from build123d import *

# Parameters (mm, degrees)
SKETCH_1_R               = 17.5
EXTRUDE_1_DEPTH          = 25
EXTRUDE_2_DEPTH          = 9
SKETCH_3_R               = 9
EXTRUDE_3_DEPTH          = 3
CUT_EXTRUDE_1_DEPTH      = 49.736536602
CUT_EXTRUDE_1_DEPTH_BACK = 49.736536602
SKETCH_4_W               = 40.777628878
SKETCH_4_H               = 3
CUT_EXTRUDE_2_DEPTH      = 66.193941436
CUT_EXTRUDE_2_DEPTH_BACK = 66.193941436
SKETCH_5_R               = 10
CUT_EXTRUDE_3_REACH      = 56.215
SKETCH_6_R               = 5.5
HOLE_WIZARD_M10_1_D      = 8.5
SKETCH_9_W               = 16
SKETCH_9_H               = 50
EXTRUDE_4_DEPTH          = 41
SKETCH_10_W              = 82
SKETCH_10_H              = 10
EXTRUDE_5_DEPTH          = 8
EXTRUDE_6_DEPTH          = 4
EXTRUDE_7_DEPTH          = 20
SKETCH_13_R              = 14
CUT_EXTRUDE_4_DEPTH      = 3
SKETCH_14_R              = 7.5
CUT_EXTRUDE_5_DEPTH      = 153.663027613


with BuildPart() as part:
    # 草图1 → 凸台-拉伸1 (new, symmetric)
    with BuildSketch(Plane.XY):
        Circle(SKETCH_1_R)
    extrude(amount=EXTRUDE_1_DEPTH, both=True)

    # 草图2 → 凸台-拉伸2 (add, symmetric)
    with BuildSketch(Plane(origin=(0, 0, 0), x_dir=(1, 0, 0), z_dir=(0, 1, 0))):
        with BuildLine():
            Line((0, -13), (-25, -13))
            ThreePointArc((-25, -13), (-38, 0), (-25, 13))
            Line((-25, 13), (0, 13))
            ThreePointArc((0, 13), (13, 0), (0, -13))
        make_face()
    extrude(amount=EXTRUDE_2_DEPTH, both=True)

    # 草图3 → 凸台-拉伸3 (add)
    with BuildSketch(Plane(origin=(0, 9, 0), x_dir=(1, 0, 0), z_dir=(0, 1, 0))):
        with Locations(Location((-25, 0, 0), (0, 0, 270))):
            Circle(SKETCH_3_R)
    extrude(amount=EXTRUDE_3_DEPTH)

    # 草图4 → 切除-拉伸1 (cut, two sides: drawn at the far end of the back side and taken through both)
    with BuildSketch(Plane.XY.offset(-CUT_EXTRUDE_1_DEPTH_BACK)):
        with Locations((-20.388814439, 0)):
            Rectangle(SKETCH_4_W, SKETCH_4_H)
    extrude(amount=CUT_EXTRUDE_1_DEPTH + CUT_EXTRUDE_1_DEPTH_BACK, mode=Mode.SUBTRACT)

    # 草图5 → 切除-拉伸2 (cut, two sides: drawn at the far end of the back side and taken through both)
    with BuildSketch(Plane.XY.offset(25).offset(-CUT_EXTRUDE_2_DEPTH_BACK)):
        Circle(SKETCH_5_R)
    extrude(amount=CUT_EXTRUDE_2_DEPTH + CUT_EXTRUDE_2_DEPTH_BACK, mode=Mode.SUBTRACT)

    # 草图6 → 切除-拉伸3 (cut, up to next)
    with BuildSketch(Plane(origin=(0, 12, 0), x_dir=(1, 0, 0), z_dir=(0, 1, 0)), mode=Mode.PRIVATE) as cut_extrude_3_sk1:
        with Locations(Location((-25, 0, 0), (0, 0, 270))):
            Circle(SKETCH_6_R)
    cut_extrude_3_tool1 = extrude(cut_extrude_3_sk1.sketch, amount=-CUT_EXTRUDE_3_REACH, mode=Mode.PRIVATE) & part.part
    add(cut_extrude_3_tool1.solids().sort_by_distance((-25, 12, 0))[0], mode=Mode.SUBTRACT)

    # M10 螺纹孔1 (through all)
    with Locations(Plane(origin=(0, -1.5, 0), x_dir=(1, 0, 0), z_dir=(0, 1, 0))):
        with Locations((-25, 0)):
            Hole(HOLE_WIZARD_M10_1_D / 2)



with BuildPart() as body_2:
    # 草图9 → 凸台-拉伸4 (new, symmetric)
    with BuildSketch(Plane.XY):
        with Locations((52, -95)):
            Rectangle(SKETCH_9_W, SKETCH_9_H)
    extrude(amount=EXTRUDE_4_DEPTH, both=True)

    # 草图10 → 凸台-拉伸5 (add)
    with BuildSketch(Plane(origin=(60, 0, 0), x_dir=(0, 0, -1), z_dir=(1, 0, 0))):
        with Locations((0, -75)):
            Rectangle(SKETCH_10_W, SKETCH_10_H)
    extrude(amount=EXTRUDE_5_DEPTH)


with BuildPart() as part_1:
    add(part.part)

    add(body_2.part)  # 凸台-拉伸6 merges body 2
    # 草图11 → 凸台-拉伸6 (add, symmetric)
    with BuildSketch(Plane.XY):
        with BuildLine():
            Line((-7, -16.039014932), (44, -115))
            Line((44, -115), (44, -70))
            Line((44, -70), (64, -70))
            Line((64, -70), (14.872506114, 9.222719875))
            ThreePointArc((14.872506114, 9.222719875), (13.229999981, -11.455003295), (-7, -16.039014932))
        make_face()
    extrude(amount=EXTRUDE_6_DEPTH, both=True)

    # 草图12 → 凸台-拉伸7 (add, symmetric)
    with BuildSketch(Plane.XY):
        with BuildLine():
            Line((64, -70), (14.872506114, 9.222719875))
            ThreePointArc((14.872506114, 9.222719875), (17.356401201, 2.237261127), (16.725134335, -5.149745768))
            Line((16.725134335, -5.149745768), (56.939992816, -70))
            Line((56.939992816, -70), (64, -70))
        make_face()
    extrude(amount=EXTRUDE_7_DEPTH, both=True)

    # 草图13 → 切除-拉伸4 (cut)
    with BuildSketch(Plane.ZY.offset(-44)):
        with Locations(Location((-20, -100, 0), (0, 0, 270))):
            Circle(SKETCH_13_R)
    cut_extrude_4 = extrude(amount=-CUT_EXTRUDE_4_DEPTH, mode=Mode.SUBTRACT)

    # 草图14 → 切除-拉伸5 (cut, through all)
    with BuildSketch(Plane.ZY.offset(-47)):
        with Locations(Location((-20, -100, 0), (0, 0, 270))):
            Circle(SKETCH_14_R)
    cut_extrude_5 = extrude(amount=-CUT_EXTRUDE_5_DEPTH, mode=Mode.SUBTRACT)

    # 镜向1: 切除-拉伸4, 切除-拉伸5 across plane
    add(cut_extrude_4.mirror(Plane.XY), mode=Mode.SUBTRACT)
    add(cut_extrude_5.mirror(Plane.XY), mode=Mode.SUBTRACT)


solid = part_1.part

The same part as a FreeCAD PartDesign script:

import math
import FreeCAD as App
import Part
import Sketcher

V = App.Vector
Q = App.Units.Quantity

doc = App.newDocument("Part")
params = doc.addObject("Spreadsheet::Sheet", "Params")
for row, (alias, value) in enumerate([
    ("sketch1_diameter", "35 mm"),
    ("pad1_length", "50 mm"),
    ("sketch2_radius", "13 mm"),
    ("sketch2_width", "25 mm"),
    ("pad2_length", "18 mm"),
    ("sketch3_diameter", "18 mm"),
    ("pad3_length", "3 mm"),
    ("sketch4_height", "3 mm"),
    ("sketch5_diameter", "20 mm"),
    ("sketch6_diameter", "11 mm"),
    ("sketch7_diameter", "8.5 mm"),
    ("hole_diameter", "8.5 mm"),
    ("sketch8_width", "16 mm"),
    ("sketch8_height", "50 mm"),
    ("pad4_length", "82 mm"),
    ("sketch9_width", "10 mm"),
    ("sketch9_height", "82 mm"),
    ("pad5_length", "8 mm"),
    ("sketch10_radius", "17.5 mm"),
    ("sketch10_width", "20 mm"),
    ("sketch10_height", "45 mm"),
    ("pad6_length", "8 mm"),
    ("sketch11_radius", "17.5 mm"),
    ("pad7_length", "40 mm"),
    ("sketch12_diameter", "28 mm"),
    ("pocket4_length", "3 mm"),
    ("sketch13_diameter", "15 mm"),
], start=1):
    params.set(f"A{row}", alias)
    params.set(f"B{row}", "=" + value)
    params.setAlias(f"B{row}", alias)

body = doc.addObject("PartDesign::Body", "Body")

# Sketch on XY plane
sketch1 = body.newObject("Sketcher::SketchObject", "Sketch")
sketch1.AttachmentSupport = (doc.getObject("XY_Plane"), [""])
sketch1.MapMode = "FlatFace"
sketch1.addGeometry(Part.Circle(V(0, 0, 0), V(0, 0, 1), 17.5), False)
sketch1.addConstraint(Sketcher.Constraint("Coincident", 0, 3, -1, 1))
sketch1.addConstraint(Sketcher.Constraint("Diameter", 0, Q("35 mm")))
sketch1.setExpression("Constraints[1]", "Params.sketch1_diameter")
pad1 = body.newObject("PartDesign::Pad", "Pad")
pad1.Profile = sketch1
pad1.setExpression("Length", "Params.pad1_length")
pad1.Midplane = True

# Sketch on XZ plane
sketch2 = body.newObject("Sketcher::SketchObject", "Sketch001")
sketch2.AttachmentSupport = (doc.getObject("XZ_Plane"), [""])
sketch2.MapMode = "FlatFace"
sketch2.addGeometry(Part.LineSegment(V(-25, 13, 0), V(0, 13, 0)), False)
sketch2.addGeometry(Part.ArcOfCircle(Part.Circle(V(0, 0, 0), V(0, 0, 1), 13), math.radians(-90), math.radians(90)), False)
sketch2.addGeometry(Part.LineSegment(V(0, -13, 0), V(-25, -13, 0)), False)
sketch2.addGeometry(Part.ArcOfCircle(Part.Circle(V(-25, 0, 0), V(0, 0, 1), 13), math.radians(90), math.radians(270)), False)
sketch2.addConstraint(Sketcher.Constraint("Tangent", 0, 2, 1, 2))
sketch2.addConstraint(Sketcher.Constraint("Tangent", 1, 1, 2, 1))
sketch2.addConstraint(Sketcher.Constraint("Tangent", 2, 2, 3, 2))
sketch2.addConstraint(Sketcher.Constraint("Tangent", 3, 1, 0, 1))
sketch2.addConstraint(Sketcher.Constraint("Horizontal", 0))
sketch2.addConstraint(Sketcher.Constraint("Horizontal", 2))
sketch2.addConstraint(Sketcher.Constraint("Coincident", 1, 3, -1, 1))
sketch2.addConstraint(Sketcher.Constraint("Radius", 1, Q("13 mm")))
sketch2.addConstraint(Sketcher.Constraint("DistanceX", 0, 1, 0, 2, Q("25 mm")))
sketch2.setExpression("Constraints[7]", "Params.sketch2_radius")
sketch2.setExpression("Constraints[8]", "Params.sketch2_width")
pad2 = body.newObject("PartDesign::Pad", "Pad001")
pad2.Profile = sketch2
pad2.setExpression("Length", "Params.pad2_length")
pad2.Midplane = True

# Sketch on XZ plane
sketch3 = body.newObject("Sketcher::SketchObject", "Sketch002")
sketch3.AttachmentSupport = (doc.getObject("XZ_Plane"), [""])
sketch3.MapMode = "FlatFace"
sketch3.AttachmentOffset = App.Placement(V(0, 0, -9), App.Rotation())
sketch3.addGeometry(Part.Circle(V(-25, 0, 0), V(0, 0, 1), 9), False)
sketch3.addConstraint(Sketcher.Constraint("PointOnObject", 0, 3, -1))
sketch3.addConstraint(Sketcher.Constraint("Diameter", 0, Q("18 mm")))
sketch3.addConstraint(Sketcher.Constraint("DistanceX", 0, 3, -1, 1, Q("25 mm")))
sketch3.setExpression("Constraints[1]", "Params.sketch3_diameter")
pad3 = body.newObject("PartDesign::Pad", "Pad002")
pad3.Profile = sketch3
pad3.setExpression("Length", "Params.pad3_length")
pad3.Reversed = True

# Sketch on XY plane
sketch4 = body.newObject("Sketcher::SketchObject", "Sketch003")
sketch4.AttachmentSupport = (doc.getObject("XY_Plane"), [""])
sketch4.MapMode = "FlatFace"
sketch4.addGeometry(Part.LineSegment(V(-40.777629, 1.5, 0), V(-40.777629, -1.5, 0)), False)
sketch4.addGeometry(Part.LineSegment(V(-40.777629, -1.5, 0), V(0, -1.5, 0)), False)
sketch4.addGeometry(Part.LineSegment(V(0, -1.5, 0), V(0, 1.5, 0)), False)
sketch4.addGeometry(Part.LineSegment(V(0, 1.5, 0), V(-40.777629, 1.5, 0)), False)
sketch4.addConstraint(Sketcher.Constraint("Coincident", 0, 2, 1, 1))
sketch4.addConstraint(Sketcher.Constraint("Coincident", 1, 2, 2, 1))
sketch4.addConstraint(Sketcher.Constraint("Coincident", 2, 2, 3, 1))
sketch4.addConstraint(Sketcher.Constraint("Coincident", 3, 2, 0, 1))
sketch4.addConstraint(Sketcher.Constraint("Vertical", 0))
sketch4.addConstraint(Sketcher.Constraint("Horizontal", 1))
sketch4.addConstraint(Sketcher.Constraint("Vertical", 2))
sketch4.addConstraint(Sketcher.Constraint("Horizontal", 3))
sketch4.addConstraint(Sketcher.Constraint("Symmetric", 1, 2, 2, 2, -1, 1))
sketch4.addConstraint(Sketcher.Constraint("DistanceY", 0, 2, 0, 1, Q("3 mm")))
sketch4.addConstraint(Sketcher.Constraint("DistanceX", 1, 1, 1, 2, Q("40.777629 mm")))
sketch4.setExpression("Constraints[9]", "Params.sketch4_height")
pocket1 = body.newObject("PartDesign::Pocket", "Pocket")
pocket1.Profile = sketch4
pocket1.Type = "ThroughAll"
pocket1.Midplane = True

# Sketch on XY plane
sketch5 = body.newObject("Sketcher::SketchObject", "Sketch004")
sketch5.AttachmentSupport = (doc.getObject("XY_Plane"), [""])
sketch5.MapMode = "FlatFace"
sketch5.AttachmentOffset = App.Placement(V(0, 0, 25), App.Rotation())
sketch5.addGeometry(Part.Circle(V(0, 0, 0), V(0, 0, 1), 10), False)
sketch5.addConstraint(Sketcher.Constraint("Coincident", 0, 3, -1, 1))
sketch5.addConstraint(Sketcher.Constraint("Diameter", 0, Q("20 mm")))
sketch5.setExpression("Constraints[1]", "Params.sketch5_diameter")
pocket2 = body.newObject("PartDesign::Pocket", "Pocket001")
pocket2.Profile = sketch5
pocket2.Type = "ThroughAll"
pocket2.Midplane = True

# Sketch on XZ plane
sketch6 = body.newObject("Sketcher::SketchObject", "Sketch005")
sketch6.AttachmentSupport = (doc.getObject("XZ_Plane"), [""])
sketch6.MapMode = "FlatFace"
sketch6.AttachmentOffset = App.Placement(V(0, 0, -12), App.Rotation())
sketch6.addGeometry(Part.Circle(V(-25, 0, 0), V(0, 0, 1), 5.5), False)
sketch6.addConstraint(Sketcher.Constraint("PointOnObject", 0, 3, -1))
sketch6.addConstraint(Sketcher.Constraint("Diameter", 0, Q("11 mm")))
sketch6.addConstraint(Sketcher.Constraint("DistanceX", 0, 3, -1, 1, Q("25 mm")))
sketch6.setExpression("Constraints[1]", "Params.sketch6_diameter")
pocket3 = body.newObject("PartDesign::Pocket", "Pocket002")
pocket3.Profile = sketch6
pocket3.Type = "UpToFirst"
pocket3.Reversed = True

# Sketch on XZ plane
sketch7 = body.newObject("Sketcher::SketchObject", "Sketch006")
sketch7.AttachmentSupport = (doc.getObject("XZ_Plane"), [""])
sketch7.MapMode = "FlatFace"
sketch7.AttachmentOffset = App.Placement(V(0, 0, 1.5), App.Rotation())
sketch7.addGeometry(Part.Circle(V(-25, 0, 0), V(0, 0, 1), 4.25), False)
sketch7.addConstraint(Sketcher.Constraint("PointOnObject", 0, 3, -1))
sketch7.addConstraint(Sketcher.Constraint("Diameter", 0, Q("8.5 mm")))
sketch7.addConstraint(Sketcher.Constraint("DistanceX", 0, 3, -1, 1, Q("25 mm")))
sketch7.setExpression("Constraints[1]", "Params.sketch7_diameter")
doc.recompute()
hole = body.newObject("PartDesign::Hole", "Hole")
hole.Profile = sketch7
hole.ThreadType = "None"
hole.setExpression("Diameter", "Params.hole_diameter")
hole.DepthType = "ThroughAll"
hole.Reversed = True
body2 = doc.addObject("PartDesign::Body", "Body001")

# Sketch on XY plane
sketch8 = body2.newObject("Sketcher::SketchObject", "Sketch007")
sketch8.AttachmentSupport = (doc.getObject("XY_Plane001"), [""])
sketch8.MapMode = "FlatFace"
sketch8.addGeometry(Part.LineSegment(V(44, -70, 0), V(44, -120, 0)), False)
sketch8.addGeometry(Part.LineSegment(V(44, -120, 0), V(60, -120, 0)), False)
sketch8.addGeometry(Part.LineSegment(V(60, -120, 0), V(60, -70, 0)), False)
sketch8.addGeometry(Part.LineSegment(V(60, -70, 0), V(44, -70, 0)), False)
sketch8.addConstraint(Sketcher.Constraint("Coincident", 0, 2, 1, 1))
sketch8.addConstraint(Sketcher.Constraint("Coincident", 1, 2, 2, 1))
sketch8.addConstraint(Sketcher.Constraint("Coincident", 2, 2, 3, 1))
sketch8.addConstraint(Sketcher.Constraint("Coincident", 3, 2, 0, 1))
sketch8.addConstraint(Sketcher.Constraint("Vertical", 0))
sketch8.addConstraint(Sketcher.Constraint("Horizontal", 1))
sketch8.addConstraint(Sketcher.Constraint("Vertical", 2))
sketch8.addConstraint(Sketcher.Constraint("Horizontal", 3))
sketch8.addConstraint(Sketcher.Constraint("DistanceX", 1, 1, 1, 2, Q("16 mm")))
sketch8.addConstraint(Sketcher.Constraint("DistanceY", 0, 2, 0, 1, Q("50 mm")))
sketch8.addConstraint(Sketcher.Constraint("DistanceX", -1, 1, 0, 2, Q("44 mm")))
sketch8.addConstraint(Sketcher.Constraint("DistanceY", 0, 2, -1, 1, Q("120 mm")))
sketch8.setExpression("Constraints[8]", "Params.sketch8_width")
sketch8.setExpression("Constraints[9]", "Params.sketch8_height")
pad4 = body2.newObject("PartDesign::Pad", "Pad003")
pad4.Profile = sketch8
pad4.setExpression("Length", "Params.pad4_length")
pad4.Midplane = True

# Sketch on YZ plane
sketch9 = body2.newObject("Sketcher::SketchObject", "Sketch008")
sketch9.AttachmentSupport = (doc.getObject("YZ_Plane001"), [""])
sketch9.MapMode = "FlatFace"
sketch9.AttachmentOffset = App.Placement(V(0, 0, 60), App.Rotation())
sketch9.addGeometry(Part.LineSegment(V(-70, 41, 0), V(-80, 41, 0)), False)
sketch9.addGeometry(Part.LineSegment(V(-80, 41, 0), V(-80, -41, 0)), False)
sketch9.addGeometry(Part.LineSegment(V(-80, -41, 0), V(-70, -41, 0)), False)
sketch9.addGeometry(Part.LineSegment(V(-70, -41, 0), V(-70, 41, 0)), False)
sketch9.addConstraint(Sketcher.Constraint("Coincident", 0, 2, 1, 1))
sketch9.addConstraint(Sketcher.Constraint("Coincident", 1, 2, 2, 1))
sketch9.addConstraint(Sketcher.Constraint("Coincident", 2, 2, 3, 1))
sketch9.addConstraint(Sketcher.Constraint("Coincident", 3, 2, 0, 1))
sketch9.addConstraint(Sketcher.Constraint("Horizontal", 0))
sketch9.addConstraint(Sketcher.Constraint("Vertical", 1))
sketch9.addConstraint(Sketcher.Constraint("Horizontal", 2))
sketch9.addConstraint(Sketcher.Constraint("Vertical", 3))
sketch9.addConstraint(Sketcher.Constraint("DistanceX", 0, 2, 0, 1, Q("10 mm")))
sketch9.addConstraint(Sketcher.Constraint("DistanceY", 1, 2, 1, 1, Q("82 mm")))
sketch9.addConstraint(Sketcher.Constraint("DistanceX", 0, 2, -1, 1, Q("80 mm")))
sketch9.addConstraint(Sketcher.Constraint("DistanceY", -1, 1, 0, 2, Q("41 mm")))
sketch9.setExpression("Constraints[8]", "Params.sketch9_width")
sketch9.setExpression("Constraints[9]", "Params.sketch9_height")
pad5 = body2.newObject("PartDesign::Pad", "Pad004")
pad5.Profile = sketch9
pad5.setExpression("Length", "Params.pad5_length")
body.AllowCompound = True
doc.recompute()

boolean = body.newObject("PartDesign::Boolean", "Boolean")
boolean.Type = "Fuse"
boolean.addObjects([body2])

# Sketch on XY plane
sketch10 = body.newObject("Sketcher::SketchObject", "Sketch009")
sketch10.AttachmentSupport = (doc.getObject("XY_Plane"), [""])
sketch10.MapMode = "FlatFace"
sketch10.addGeometry(Part.LineSegment(V(-7, -16.039015, 0), V(44, -115, 0)), False)
sketch10.addGeometry(Part.LineSegment(V(44, -115, 0), V(44, -70, 0)), False)
sketch10.addGeometry(Part.LineSegment(V(44, -70, 0), V(64, -70, 0)), False)
sketch10.addGeometry(Part.LineSegment(V(64, -70, 0), V(14.872506, 9.22272, 0)), False)
sketch10.addGeometry(Part.ArcOfCircle(Part.Circle(V(0, 0, 0), V(0, 0, 1), 17.5), math.radians(-113.578178), math.radians(31.803827)), False)
sketch10.addConstraint(Sketcher.Constraint("Coincident", 0, 2, 1, 1))
sketch10.addConstraint(Sketcher.Constraint("Coincident", 1, 2, 2, 1))
sketch10.addConstraint(Sketcher.Constraint("Coincident", 2, 2, 3, 1))
sketch10.addConstraint(Sketcher.Constraint("Tangent", 3, 2, 4, 2))
sketch10.addConstraint(Sketcher.Constraint("Coincident", 4, 1, 0, 1))
sketch10.addConstraint(Sketcher.Constraint("Vertical", 1))
sketch10.addConstraint(Sketcher.Constraint("Horizontal", 2))
sketch10.addConstraint(Sketcher.Constraint("Coincident", 4, 3, -1, 1))
sketch10.addConstraint(Sketcher.Constraint("Radius", 4, Q("17.5 mm")))
sketch10.addConstraint(Sketcher.Constraint("DistanceX", 2, 1, 2, 2, Q("20 mm")))
sketch10.addConstraint(Sketcher.Constraint("DistanceY", 1, 1, 1, 2, Q("45 mm")))
sketch10.addConstraint(Sketcher.Constraint("DistanceX", -1, 1, 0, 2, Q("44 mm")))
sketch10.addConstraint(Sketcher.Constraint("DistanceY", 0, 2, -1, 1, Q("115 mm")))
sketch10.addConstraint(Sketcher.Constraint("DistanceX", 4, 1, -1, 1, Q("7 mm")))
sketch10.setExpression("Constraints[8]", "Params.sketch10_radius")
sketch10.setExpression("Constraints[9]", "Params.sketch10_width")
sketch10.setExpression("Constraints[10]", "Params.sketch10_height")
pad6 = body.newObject("PartDesign::Pad", "Pad005")
pad6.Profile = sketch10
pad6.setExpression("Length", "Params.pad6_length")
pad6.Midplane = True

# Sketch on XY plane
sketch11 = body.newObject("Sketcher::SketchObject", "Sketch010")
sketch11.AttachmentSupport = (doc.getObject("XY_Plane"), [""])
sketch11.MapMode = "FlatFace"
sketch11.addGeometry(Part.LineSegment(V(64, -70, 0), V(14.872506, 9.22272, 0)), False)
sketch11.addGeometry(Part.ArcOfCircle(Part.Circle(V(0, 0, 0), V(0, 0, 1), 17.5), math.radians(-17.11384), math.radians(31.803827)), False)
sketch11.addGeometry(Part.LineSegment(V(16.725134, -5.149746, 0), V(56.939993, -70, 0)), False)
sketch11.addGeometry(Part.LineSegment(V(56.939993, -70, 0), V(64, -70, 0)), False)
sketch11.addConstraint(Sketcher.Constraint("Tangent", 0, 2, 1, 2))
sketch11.addConstraint(Sketcher.Constraint("Coincident", 1, 1, 2, 1))
sketch11.addConstraint(Sketcher.Constraint("Coincident", 2, 2, 3, 1))
sketch11.addConstraint(Sketcher.Constraint("Coincident", 3, 2, 0, 1))
sketch11.addConstraint(Sketcher.Constraint("Horizontal", 3))
sketch11.addConstraint(Sketcher.Constraint("Coincident", 1, 3, -1, 1))
sketch11.addConstraint(Sketcher.Constraint("Parallel", 0, 2))
sketch11.addConstraint(Sketcher.Constraint("Radius", 1, Q("17.5 mm")))
sketch11.addConstraint(Sketcher.Constraint("DistanceY", 2, 2, -1, 1, Q("70 mm")))
sketch11.addConstraint(Sketcher.Constraint("DistanceX", -1, 1, 3, 2, Q("64 mm")))
sketch11.addConstraint(Sketcher.Constraint("Distance", 2, Q("76.30721 mm")))
sketch11.setExpression("Constraints[7]", "Params.sketch11_radius")
pad7 = body.newObject("PartDesign::Pad", "Pad006")
pad7.Profile = sketch11
pad7.setExpression("Length", "Params.pad7_length")
pad7.Midplane = True

# Sketch on YZ plane
sketch12 = body.newObject("Sketcher::SketchObject", "Sketch011")
sketch12.AttachmentSupport = (doc.getObject("YZ_Plane"), [""])
sketch12.MapMode = "FlatFace"
sketch12.AttachmentOffset = App.Placement(V(0, 0, 44), App.Rotation())
sketch12.addGeometry(Part.Circle(V(-100, -20, 0), V(0, 0, 1), 14), False)
sketch12.addConstraint(Sketcher.Constraint("Diameter", 0, Q("28 mm")))
sketch12.addConstraint(Sketcher.Constraint("DistanceX", 0, 3, -1, 1, Q("100 mm")))
sketch12.addConstraint(Sketcher.Constraint("DistanceY", 0, 3, -1, 1, Q("20 mm")))
sketch12.setExpression("Constraints[0]", "Params.sketch12_diameter")
pocket4 = body.newObject("PartDesign::Pocket", "Pocket003")
pocket4.Profile = sketch12
pocket4.setExpression("Length", "Params.pocket4_length")
pocket4.Reversed = True

# Sketch on YZ plane
sketch13 = body.newObject("Sketcher::SketchObject", "Sketch012")
sketch13.AttachmentSupport = (doc.getObject("YZ_Plane"), [""])
sketch13.MapMode = "FlatFace"
sketch13.AttachmentOffset = App.Placement(V(0, 0, 47), App.Rotation())
sketch13.addGeometry(Part.Circle(V(-100, -20, 0), V(0, 0, 1), 7.5), False)
sketch13.addConstraint(Sketcher.Constraint("Diameter", 0, Q("15 mm")))
sketch13.addConstraint(Sketcher.Constraint("DistanceX", 0, 3, -1, 1, Q("100 mm")))
sketch13.addConstraint(Sketcher.Constraint("DistanceY", 0, 3, -1, 1, Q("20 mm")))
sketch13.setExpression("Constraints[0]", "Params.sketch13_diameter")
pocket5 = body.newObject("PartDesign::Pocket", "Pocket004")
pocket5.Profile = sketch13
pocket5.Type = "ThroughAll"
pocket5.Reversed = True
doc.recompute()

mirrored = body.newObject("PartDesign::Mirrored", "Mirrored")
mirrored.Originals = [pocket4, pocket5]
mirrored.MirrorPlane = (doc.getObject("XY_Plane"), [""])
body.Tip = mirrored

doc.recompute()
